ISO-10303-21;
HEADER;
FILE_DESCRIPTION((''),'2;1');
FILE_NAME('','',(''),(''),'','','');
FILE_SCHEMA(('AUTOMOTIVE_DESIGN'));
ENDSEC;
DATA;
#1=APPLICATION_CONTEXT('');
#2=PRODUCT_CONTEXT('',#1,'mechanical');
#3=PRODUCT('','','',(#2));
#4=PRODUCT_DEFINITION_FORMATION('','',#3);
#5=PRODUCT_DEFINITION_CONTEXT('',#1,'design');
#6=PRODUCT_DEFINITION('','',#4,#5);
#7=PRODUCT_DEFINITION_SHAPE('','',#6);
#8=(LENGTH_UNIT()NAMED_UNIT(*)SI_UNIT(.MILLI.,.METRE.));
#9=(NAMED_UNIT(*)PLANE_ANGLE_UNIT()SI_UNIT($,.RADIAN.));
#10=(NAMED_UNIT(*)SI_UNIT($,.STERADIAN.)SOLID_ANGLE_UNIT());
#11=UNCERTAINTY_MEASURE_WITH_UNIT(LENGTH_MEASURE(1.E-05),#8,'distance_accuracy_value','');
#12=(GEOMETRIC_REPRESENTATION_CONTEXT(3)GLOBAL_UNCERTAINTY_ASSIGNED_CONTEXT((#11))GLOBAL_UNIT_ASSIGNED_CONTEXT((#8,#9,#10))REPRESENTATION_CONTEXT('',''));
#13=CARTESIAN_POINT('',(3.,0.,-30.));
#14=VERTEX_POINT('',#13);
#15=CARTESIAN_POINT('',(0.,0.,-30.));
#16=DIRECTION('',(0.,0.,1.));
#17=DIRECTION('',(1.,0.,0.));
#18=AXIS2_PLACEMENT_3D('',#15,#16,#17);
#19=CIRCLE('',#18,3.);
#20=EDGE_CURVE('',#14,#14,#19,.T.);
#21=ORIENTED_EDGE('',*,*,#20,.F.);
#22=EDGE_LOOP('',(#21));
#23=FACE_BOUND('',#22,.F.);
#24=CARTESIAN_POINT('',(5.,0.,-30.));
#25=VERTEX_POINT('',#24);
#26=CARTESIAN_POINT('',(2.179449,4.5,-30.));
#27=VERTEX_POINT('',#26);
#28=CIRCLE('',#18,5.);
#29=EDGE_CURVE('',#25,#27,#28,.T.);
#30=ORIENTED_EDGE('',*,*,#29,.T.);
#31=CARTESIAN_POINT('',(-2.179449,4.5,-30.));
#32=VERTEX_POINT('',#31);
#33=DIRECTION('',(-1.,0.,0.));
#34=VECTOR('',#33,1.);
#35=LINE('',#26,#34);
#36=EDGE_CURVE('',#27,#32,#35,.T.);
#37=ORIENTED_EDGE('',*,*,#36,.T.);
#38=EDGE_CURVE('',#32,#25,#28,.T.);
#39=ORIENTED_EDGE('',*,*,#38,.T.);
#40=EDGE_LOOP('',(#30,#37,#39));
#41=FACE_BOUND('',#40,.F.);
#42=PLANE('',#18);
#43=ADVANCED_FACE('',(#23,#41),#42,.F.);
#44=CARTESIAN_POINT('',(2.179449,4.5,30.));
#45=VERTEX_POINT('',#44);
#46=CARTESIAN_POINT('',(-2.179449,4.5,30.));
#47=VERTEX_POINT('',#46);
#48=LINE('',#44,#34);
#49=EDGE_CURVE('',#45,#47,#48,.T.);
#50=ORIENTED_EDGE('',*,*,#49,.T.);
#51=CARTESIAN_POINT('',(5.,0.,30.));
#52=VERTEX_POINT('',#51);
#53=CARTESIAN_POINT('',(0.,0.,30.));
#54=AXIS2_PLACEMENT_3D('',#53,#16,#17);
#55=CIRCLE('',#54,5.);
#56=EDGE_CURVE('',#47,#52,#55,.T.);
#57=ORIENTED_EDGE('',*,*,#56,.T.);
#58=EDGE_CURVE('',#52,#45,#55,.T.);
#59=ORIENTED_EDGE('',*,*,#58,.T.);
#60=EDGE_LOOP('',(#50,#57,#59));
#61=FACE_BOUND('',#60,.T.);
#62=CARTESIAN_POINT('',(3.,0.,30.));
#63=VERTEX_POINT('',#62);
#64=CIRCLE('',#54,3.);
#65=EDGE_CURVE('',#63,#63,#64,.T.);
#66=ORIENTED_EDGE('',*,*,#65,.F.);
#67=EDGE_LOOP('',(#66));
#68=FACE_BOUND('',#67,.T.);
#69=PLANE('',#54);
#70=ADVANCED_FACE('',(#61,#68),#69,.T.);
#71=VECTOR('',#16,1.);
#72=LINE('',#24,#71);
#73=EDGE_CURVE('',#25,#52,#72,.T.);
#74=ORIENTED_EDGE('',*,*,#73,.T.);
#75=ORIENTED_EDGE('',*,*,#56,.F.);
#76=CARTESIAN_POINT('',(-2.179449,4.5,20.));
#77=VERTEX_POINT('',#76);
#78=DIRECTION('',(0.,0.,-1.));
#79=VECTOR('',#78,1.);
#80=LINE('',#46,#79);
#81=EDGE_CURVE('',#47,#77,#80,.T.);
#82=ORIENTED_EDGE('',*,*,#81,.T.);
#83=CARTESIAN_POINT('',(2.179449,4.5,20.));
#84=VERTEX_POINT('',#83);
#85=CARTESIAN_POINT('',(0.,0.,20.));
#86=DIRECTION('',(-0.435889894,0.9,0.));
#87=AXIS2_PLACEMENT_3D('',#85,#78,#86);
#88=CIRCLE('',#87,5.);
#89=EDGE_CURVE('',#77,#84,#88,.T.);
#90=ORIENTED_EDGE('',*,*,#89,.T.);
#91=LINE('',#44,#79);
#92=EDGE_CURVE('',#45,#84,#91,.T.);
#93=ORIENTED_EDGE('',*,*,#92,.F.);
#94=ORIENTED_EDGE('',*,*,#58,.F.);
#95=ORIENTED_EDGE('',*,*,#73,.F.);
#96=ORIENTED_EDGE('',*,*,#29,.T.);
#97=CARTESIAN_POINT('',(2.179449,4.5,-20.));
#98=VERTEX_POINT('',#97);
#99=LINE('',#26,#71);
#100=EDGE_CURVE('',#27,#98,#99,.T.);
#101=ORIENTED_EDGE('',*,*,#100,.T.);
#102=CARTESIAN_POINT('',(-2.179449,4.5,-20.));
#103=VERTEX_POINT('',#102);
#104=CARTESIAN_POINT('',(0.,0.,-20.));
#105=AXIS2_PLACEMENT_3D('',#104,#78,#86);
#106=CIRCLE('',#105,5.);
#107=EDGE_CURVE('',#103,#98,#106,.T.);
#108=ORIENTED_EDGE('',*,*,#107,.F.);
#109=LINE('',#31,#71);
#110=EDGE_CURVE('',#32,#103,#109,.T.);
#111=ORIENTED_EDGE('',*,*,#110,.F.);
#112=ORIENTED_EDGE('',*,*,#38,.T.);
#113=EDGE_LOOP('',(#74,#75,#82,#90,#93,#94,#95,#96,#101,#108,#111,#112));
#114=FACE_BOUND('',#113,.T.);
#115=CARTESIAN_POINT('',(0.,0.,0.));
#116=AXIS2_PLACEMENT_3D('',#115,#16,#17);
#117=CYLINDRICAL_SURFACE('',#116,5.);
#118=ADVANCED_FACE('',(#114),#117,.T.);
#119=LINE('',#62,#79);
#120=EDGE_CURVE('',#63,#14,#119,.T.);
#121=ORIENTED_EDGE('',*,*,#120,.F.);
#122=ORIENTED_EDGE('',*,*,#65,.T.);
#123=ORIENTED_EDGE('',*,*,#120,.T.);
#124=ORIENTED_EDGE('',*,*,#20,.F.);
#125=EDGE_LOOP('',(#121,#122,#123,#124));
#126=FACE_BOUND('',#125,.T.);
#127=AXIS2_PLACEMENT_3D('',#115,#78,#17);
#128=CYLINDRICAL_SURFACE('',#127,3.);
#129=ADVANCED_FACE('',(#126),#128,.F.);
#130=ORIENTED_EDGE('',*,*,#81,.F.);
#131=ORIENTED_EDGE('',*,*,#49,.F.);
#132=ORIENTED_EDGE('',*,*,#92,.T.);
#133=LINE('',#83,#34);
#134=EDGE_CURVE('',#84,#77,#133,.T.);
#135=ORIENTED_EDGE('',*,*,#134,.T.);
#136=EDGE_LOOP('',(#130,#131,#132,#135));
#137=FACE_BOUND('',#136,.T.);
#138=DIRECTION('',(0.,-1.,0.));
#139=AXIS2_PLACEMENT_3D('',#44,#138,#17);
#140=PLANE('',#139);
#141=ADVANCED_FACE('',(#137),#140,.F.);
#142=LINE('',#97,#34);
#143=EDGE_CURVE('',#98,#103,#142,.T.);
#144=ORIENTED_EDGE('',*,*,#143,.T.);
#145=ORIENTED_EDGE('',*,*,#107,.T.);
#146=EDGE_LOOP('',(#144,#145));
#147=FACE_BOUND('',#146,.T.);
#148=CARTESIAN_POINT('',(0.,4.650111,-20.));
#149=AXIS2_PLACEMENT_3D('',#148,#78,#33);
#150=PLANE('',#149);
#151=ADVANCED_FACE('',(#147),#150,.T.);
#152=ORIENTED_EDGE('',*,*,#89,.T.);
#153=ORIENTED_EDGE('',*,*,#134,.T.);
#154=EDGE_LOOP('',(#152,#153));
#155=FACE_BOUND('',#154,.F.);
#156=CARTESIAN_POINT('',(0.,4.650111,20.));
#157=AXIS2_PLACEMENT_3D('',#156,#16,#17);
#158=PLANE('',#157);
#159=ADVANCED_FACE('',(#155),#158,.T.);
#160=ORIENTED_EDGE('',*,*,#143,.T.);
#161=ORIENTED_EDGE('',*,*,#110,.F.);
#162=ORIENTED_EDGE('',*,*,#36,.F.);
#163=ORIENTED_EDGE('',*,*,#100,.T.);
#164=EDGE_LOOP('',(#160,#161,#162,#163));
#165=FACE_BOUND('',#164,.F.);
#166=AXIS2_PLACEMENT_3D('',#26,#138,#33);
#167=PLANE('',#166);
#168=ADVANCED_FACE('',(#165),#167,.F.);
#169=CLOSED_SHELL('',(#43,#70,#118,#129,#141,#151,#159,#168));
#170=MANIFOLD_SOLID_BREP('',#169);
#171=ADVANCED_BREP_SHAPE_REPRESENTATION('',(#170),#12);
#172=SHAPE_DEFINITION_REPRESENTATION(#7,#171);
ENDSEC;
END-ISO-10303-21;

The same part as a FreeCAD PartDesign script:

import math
import FreeCAD as App
import Part
import Sketcher
from FreeCAD import Vector
Q = App.Units.Quantity

doc = App.newDocument("Part")
body = doc.addObject("PartDesign::Body", "Body")

sketch1 = doc.addObject("Sketcher::SketchObject", "Sketch")
body.addObject(sketch1)
sketch1.AttachmentSupport = (doc.XY_Plane, [""])
sketch1.MapMode = "FlatFace"
sketch1.addGeometry([
    Part.Circle(Vector(0, 0, 0), Vector(0, 0, 1), 5),
    Part.Circle(Vector(0, 0, 0), Vector(0, 0, 1), 3),
], False)
sketch1.addConstraint([
    Sketcher.Constraint("Coincident", 0, 3, -1, 1),
    Sketcher.Constraint("Coincident", 1, 3, -1, 1),
    Sketcher.Constraint("Diameter", 0, Q("10 mm")),
    Sketcher.Constraint("Diameter", 1, Q("6 mm")),
])
pad1 = doc.addObject("PartDesign::Pad", "Pad")
body.addObject(pad1)
pad1.Profile = sketch1
pad1.Length = 60
pad1.Midplane = True

sketch2 = doc.addObject("Sketcher::SketchObject", "Sketch001")
body.addObject(sketch2)
sketch2.AttachmentSupport = (doc.XY_Plane, [""])
sketch2.MapMode = "FlatFace"
sketch2.AttachmentOffset = App.Placement(Vector(0, 0, -30), App.Rotation())
sketch2.addGeometry([
    Part.LineSegment(Vector(2.2, 4.5, 0), Vector(-2.2, 4.5, 0)),
    Part.ArcOfCircle(Part.Circle(Vector(0, 0, 0), Vector(0, 0, 1), 5), math.radians(64), math.radians(116)),
], False)
sketch2.addConstraint([
    Sketcher.Constraint("Coincident", 0, 1, 1, 1),
    Sketcher.Constraint("Coincident", 1, 2, 0, 2),
    Sketcher.Constraint("Horizontal", 0),
    Sketcher.Constraint("Coincident", 1, 3, -1, 1),
    Sketcher.Constraint("Radius", 1, Q("5 mm")),
    Sketcher.Constraint("DistanceY", -1, 1, 0, 1, Q("4.5 mm")),
])
pocket1 = doc.addObject("PartDesign::Pocket", "Pocket")
body.addObject(pocket1)
pocket1.Profile = sketch2
pocket1.Length = 10
pocket1.Reversed = True
doc.recompute()

mirrored = doc.addObject("PartDesign::Mirrored", "Mirrored")
body.addObject(mirrored)
mirrored.Originals = [pocket1]
mirrored.MirrorPlane = (doc.XY_Plane, [""])
body.Tip = mirrored

doc.recompute()
